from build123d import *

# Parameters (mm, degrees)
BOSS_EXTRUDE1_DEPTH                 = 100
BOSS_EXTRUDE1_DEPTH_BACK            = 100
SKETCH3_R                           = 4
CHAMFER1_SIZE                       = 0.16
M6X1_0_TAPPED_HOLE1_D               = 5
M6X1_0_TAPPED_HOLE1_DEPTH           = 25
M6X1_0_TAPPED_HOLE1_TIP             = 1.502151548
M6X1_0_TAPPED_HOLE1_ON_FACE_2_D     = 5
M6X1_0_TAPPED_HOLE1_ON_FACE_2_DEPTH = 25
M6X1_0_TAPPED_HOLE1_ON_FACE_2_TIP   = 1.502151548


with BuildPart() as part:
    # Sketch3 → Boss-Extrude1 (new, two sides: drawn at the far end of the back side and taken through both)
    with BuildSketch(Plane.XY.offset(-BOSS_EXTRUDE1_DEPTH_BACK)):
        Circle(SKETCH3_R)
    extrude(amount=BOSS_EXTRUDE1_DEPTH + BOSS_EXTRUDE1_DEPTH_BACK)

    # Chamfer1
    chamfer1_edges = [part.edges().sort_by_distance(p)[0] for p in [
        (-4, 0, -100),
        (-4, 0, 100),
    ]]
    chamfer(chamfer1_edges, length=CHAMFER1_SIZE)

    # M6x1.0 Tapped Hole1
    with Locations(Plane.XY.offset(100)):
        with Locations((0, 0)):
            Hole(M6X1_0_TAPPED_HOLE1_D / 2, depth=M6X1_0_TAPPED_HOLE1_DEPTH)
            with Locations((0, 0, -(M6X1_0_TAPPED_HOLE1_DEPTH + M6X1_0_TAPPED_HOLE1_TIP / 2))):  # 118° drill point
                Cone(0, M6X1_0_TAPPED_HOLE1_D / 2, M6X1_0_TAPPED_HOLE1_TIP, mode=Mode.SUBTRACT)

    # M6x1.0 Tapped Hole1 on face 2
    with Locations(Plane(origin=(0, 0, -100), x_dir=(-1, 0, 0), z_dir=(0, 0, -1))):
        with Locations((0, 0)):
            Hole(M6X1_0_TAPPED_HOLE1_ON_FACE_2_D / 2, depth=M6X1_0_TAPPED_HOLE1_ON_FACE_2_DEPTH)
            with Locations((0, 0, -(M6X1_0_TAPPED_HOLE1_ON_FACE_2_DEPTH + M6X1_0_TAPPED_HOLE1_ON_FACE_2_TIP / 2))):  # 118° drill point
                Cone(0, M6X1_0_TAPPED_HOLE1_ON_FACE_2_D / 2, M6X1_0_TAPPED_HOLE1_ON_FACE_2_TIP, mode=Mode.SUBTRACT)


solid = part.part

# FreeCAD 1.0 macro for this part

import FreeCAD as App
import Part
import Sketcher
from FreeCAD import Vector
Q = App.Units.Quantity


def edges_at(feature, points):
    """Names of the edges that pass closest to the given points."""
    edges = feature.Shape.Edges
    near = lambda p: min(range(len(edges)), key=lambda i: edges[i].distToShape(Part.Vertex(*p))[0])
    return sorted({f"Edge{near(p) + 1}" for p in points})

doc = App.newDocument("Part")
body = doc.addObject("PartDesign::Body", "Body")

# Sketch on XY plane
sketch1 = doc.addObject("Sketcher::SketchObject", "Sketch")
body.addObject(sketch1)
sketch1.AttachmentSupport = (doc.XY_Plane, [""])
sketch1.MapMode = "FlatFace"
sketch1.addGeometry(Part.Circle(Vector(0, 0, 0), Vector(0, 0, 1), 4), False)
sketch1.addConstraint([
    Sketcher.Constraint("Coincident", 0, 3, -1, 1),
    Sketcher.Constraint("Diameter", 0, Q("8 mm")),
])
pad1 = doc.addObject("PartDesign::Pad", "Pad")
body.addObject(pad1)
pad1.Profile = sketch1
pad1.Type = "TwoLengths"
pad1.Length = 100
pad1.Length2 = 100
doc.recompute()

chamfer = doc.addObject("PartDesign::Chamfer", "Chamfer")
body.addObject(chamfer)
chamfer.Base = (pad1, edges_at(pad1, [(-4, 0, -100), (-4, 0, 100)]))
chamfer.Size = 0.16

# Sketch on XY plane
sketch2 = doc.addObject("Sketcher::SketchObject", "Sketch001")
body.addObject(sketch2)
sketch2.AttachmentSupport = (doc.XY_Plane, [""])
sketch2.MapMode = "FlatFace"
sketch2.AttachmentOffset = App.Placement(Vector(0, 0, 100), App.Rotation())
sketch2.addGeometry(Part.Circle(Vector(0, 0, 0), Vector(0, 0, 1), 2.5), False)
sketch2.addConstraint([
    Sketcher.Constraint("Coincident", 0, 3, -1, 1),
    Sketcher.Constraint("Diameter", 0, Q("5 mm")),
])
doc.recompute()
hole = doc.addObject("PartDesign::Hole", "Hole")
body.addObject(hole)
hole.Profile = sketch2
hole.ThreadType = "None"
hole.Diameter = 5
hole.DepthType = "Dimension"
hole.Depth = 25
hole.DrillPoint = "Angled"
hole.DrillPointAngle = 118

# Sketch on XY plane
sketch3 = doc.addObject("Sketcher::SketchObject", "Sketch002")
body.addObject(sketch3)
sketch3.AttachmentSupport = (doc.XY_Plane, [""])
sketch3.MapMode = "FlatFace"
sketch3.AttachmentOffset = App.Placement(Vector(0, 0, -100), App.Rotation())
sketch3.addGeometry(Part.Circle(Vector(0, 0, 0), Vector(0, 0, 1), 2.5), False)
sketch3.addConstraint([
    Sketcher.Constraint("Coincident", 0, 3, -1, 1),
    Sketcher.Constraint("Diameter", 0, Q("5 mm")),
])
doc.recompute()
hole2 = doc.addObject("PartDesign::Hole", "Hole001")
body.addObject(hole2)
hole2.Profile = sketch3
hole2.ThreadType = "None"
hole2.Diameter = 5
hole2.DepthType = "Dimension"
hole2.Depth = 25
hole2.DrillPoint = "Angled"
hole2.DrillPointAngle = 118
hole2.Reversed = True

doc.recompute()
